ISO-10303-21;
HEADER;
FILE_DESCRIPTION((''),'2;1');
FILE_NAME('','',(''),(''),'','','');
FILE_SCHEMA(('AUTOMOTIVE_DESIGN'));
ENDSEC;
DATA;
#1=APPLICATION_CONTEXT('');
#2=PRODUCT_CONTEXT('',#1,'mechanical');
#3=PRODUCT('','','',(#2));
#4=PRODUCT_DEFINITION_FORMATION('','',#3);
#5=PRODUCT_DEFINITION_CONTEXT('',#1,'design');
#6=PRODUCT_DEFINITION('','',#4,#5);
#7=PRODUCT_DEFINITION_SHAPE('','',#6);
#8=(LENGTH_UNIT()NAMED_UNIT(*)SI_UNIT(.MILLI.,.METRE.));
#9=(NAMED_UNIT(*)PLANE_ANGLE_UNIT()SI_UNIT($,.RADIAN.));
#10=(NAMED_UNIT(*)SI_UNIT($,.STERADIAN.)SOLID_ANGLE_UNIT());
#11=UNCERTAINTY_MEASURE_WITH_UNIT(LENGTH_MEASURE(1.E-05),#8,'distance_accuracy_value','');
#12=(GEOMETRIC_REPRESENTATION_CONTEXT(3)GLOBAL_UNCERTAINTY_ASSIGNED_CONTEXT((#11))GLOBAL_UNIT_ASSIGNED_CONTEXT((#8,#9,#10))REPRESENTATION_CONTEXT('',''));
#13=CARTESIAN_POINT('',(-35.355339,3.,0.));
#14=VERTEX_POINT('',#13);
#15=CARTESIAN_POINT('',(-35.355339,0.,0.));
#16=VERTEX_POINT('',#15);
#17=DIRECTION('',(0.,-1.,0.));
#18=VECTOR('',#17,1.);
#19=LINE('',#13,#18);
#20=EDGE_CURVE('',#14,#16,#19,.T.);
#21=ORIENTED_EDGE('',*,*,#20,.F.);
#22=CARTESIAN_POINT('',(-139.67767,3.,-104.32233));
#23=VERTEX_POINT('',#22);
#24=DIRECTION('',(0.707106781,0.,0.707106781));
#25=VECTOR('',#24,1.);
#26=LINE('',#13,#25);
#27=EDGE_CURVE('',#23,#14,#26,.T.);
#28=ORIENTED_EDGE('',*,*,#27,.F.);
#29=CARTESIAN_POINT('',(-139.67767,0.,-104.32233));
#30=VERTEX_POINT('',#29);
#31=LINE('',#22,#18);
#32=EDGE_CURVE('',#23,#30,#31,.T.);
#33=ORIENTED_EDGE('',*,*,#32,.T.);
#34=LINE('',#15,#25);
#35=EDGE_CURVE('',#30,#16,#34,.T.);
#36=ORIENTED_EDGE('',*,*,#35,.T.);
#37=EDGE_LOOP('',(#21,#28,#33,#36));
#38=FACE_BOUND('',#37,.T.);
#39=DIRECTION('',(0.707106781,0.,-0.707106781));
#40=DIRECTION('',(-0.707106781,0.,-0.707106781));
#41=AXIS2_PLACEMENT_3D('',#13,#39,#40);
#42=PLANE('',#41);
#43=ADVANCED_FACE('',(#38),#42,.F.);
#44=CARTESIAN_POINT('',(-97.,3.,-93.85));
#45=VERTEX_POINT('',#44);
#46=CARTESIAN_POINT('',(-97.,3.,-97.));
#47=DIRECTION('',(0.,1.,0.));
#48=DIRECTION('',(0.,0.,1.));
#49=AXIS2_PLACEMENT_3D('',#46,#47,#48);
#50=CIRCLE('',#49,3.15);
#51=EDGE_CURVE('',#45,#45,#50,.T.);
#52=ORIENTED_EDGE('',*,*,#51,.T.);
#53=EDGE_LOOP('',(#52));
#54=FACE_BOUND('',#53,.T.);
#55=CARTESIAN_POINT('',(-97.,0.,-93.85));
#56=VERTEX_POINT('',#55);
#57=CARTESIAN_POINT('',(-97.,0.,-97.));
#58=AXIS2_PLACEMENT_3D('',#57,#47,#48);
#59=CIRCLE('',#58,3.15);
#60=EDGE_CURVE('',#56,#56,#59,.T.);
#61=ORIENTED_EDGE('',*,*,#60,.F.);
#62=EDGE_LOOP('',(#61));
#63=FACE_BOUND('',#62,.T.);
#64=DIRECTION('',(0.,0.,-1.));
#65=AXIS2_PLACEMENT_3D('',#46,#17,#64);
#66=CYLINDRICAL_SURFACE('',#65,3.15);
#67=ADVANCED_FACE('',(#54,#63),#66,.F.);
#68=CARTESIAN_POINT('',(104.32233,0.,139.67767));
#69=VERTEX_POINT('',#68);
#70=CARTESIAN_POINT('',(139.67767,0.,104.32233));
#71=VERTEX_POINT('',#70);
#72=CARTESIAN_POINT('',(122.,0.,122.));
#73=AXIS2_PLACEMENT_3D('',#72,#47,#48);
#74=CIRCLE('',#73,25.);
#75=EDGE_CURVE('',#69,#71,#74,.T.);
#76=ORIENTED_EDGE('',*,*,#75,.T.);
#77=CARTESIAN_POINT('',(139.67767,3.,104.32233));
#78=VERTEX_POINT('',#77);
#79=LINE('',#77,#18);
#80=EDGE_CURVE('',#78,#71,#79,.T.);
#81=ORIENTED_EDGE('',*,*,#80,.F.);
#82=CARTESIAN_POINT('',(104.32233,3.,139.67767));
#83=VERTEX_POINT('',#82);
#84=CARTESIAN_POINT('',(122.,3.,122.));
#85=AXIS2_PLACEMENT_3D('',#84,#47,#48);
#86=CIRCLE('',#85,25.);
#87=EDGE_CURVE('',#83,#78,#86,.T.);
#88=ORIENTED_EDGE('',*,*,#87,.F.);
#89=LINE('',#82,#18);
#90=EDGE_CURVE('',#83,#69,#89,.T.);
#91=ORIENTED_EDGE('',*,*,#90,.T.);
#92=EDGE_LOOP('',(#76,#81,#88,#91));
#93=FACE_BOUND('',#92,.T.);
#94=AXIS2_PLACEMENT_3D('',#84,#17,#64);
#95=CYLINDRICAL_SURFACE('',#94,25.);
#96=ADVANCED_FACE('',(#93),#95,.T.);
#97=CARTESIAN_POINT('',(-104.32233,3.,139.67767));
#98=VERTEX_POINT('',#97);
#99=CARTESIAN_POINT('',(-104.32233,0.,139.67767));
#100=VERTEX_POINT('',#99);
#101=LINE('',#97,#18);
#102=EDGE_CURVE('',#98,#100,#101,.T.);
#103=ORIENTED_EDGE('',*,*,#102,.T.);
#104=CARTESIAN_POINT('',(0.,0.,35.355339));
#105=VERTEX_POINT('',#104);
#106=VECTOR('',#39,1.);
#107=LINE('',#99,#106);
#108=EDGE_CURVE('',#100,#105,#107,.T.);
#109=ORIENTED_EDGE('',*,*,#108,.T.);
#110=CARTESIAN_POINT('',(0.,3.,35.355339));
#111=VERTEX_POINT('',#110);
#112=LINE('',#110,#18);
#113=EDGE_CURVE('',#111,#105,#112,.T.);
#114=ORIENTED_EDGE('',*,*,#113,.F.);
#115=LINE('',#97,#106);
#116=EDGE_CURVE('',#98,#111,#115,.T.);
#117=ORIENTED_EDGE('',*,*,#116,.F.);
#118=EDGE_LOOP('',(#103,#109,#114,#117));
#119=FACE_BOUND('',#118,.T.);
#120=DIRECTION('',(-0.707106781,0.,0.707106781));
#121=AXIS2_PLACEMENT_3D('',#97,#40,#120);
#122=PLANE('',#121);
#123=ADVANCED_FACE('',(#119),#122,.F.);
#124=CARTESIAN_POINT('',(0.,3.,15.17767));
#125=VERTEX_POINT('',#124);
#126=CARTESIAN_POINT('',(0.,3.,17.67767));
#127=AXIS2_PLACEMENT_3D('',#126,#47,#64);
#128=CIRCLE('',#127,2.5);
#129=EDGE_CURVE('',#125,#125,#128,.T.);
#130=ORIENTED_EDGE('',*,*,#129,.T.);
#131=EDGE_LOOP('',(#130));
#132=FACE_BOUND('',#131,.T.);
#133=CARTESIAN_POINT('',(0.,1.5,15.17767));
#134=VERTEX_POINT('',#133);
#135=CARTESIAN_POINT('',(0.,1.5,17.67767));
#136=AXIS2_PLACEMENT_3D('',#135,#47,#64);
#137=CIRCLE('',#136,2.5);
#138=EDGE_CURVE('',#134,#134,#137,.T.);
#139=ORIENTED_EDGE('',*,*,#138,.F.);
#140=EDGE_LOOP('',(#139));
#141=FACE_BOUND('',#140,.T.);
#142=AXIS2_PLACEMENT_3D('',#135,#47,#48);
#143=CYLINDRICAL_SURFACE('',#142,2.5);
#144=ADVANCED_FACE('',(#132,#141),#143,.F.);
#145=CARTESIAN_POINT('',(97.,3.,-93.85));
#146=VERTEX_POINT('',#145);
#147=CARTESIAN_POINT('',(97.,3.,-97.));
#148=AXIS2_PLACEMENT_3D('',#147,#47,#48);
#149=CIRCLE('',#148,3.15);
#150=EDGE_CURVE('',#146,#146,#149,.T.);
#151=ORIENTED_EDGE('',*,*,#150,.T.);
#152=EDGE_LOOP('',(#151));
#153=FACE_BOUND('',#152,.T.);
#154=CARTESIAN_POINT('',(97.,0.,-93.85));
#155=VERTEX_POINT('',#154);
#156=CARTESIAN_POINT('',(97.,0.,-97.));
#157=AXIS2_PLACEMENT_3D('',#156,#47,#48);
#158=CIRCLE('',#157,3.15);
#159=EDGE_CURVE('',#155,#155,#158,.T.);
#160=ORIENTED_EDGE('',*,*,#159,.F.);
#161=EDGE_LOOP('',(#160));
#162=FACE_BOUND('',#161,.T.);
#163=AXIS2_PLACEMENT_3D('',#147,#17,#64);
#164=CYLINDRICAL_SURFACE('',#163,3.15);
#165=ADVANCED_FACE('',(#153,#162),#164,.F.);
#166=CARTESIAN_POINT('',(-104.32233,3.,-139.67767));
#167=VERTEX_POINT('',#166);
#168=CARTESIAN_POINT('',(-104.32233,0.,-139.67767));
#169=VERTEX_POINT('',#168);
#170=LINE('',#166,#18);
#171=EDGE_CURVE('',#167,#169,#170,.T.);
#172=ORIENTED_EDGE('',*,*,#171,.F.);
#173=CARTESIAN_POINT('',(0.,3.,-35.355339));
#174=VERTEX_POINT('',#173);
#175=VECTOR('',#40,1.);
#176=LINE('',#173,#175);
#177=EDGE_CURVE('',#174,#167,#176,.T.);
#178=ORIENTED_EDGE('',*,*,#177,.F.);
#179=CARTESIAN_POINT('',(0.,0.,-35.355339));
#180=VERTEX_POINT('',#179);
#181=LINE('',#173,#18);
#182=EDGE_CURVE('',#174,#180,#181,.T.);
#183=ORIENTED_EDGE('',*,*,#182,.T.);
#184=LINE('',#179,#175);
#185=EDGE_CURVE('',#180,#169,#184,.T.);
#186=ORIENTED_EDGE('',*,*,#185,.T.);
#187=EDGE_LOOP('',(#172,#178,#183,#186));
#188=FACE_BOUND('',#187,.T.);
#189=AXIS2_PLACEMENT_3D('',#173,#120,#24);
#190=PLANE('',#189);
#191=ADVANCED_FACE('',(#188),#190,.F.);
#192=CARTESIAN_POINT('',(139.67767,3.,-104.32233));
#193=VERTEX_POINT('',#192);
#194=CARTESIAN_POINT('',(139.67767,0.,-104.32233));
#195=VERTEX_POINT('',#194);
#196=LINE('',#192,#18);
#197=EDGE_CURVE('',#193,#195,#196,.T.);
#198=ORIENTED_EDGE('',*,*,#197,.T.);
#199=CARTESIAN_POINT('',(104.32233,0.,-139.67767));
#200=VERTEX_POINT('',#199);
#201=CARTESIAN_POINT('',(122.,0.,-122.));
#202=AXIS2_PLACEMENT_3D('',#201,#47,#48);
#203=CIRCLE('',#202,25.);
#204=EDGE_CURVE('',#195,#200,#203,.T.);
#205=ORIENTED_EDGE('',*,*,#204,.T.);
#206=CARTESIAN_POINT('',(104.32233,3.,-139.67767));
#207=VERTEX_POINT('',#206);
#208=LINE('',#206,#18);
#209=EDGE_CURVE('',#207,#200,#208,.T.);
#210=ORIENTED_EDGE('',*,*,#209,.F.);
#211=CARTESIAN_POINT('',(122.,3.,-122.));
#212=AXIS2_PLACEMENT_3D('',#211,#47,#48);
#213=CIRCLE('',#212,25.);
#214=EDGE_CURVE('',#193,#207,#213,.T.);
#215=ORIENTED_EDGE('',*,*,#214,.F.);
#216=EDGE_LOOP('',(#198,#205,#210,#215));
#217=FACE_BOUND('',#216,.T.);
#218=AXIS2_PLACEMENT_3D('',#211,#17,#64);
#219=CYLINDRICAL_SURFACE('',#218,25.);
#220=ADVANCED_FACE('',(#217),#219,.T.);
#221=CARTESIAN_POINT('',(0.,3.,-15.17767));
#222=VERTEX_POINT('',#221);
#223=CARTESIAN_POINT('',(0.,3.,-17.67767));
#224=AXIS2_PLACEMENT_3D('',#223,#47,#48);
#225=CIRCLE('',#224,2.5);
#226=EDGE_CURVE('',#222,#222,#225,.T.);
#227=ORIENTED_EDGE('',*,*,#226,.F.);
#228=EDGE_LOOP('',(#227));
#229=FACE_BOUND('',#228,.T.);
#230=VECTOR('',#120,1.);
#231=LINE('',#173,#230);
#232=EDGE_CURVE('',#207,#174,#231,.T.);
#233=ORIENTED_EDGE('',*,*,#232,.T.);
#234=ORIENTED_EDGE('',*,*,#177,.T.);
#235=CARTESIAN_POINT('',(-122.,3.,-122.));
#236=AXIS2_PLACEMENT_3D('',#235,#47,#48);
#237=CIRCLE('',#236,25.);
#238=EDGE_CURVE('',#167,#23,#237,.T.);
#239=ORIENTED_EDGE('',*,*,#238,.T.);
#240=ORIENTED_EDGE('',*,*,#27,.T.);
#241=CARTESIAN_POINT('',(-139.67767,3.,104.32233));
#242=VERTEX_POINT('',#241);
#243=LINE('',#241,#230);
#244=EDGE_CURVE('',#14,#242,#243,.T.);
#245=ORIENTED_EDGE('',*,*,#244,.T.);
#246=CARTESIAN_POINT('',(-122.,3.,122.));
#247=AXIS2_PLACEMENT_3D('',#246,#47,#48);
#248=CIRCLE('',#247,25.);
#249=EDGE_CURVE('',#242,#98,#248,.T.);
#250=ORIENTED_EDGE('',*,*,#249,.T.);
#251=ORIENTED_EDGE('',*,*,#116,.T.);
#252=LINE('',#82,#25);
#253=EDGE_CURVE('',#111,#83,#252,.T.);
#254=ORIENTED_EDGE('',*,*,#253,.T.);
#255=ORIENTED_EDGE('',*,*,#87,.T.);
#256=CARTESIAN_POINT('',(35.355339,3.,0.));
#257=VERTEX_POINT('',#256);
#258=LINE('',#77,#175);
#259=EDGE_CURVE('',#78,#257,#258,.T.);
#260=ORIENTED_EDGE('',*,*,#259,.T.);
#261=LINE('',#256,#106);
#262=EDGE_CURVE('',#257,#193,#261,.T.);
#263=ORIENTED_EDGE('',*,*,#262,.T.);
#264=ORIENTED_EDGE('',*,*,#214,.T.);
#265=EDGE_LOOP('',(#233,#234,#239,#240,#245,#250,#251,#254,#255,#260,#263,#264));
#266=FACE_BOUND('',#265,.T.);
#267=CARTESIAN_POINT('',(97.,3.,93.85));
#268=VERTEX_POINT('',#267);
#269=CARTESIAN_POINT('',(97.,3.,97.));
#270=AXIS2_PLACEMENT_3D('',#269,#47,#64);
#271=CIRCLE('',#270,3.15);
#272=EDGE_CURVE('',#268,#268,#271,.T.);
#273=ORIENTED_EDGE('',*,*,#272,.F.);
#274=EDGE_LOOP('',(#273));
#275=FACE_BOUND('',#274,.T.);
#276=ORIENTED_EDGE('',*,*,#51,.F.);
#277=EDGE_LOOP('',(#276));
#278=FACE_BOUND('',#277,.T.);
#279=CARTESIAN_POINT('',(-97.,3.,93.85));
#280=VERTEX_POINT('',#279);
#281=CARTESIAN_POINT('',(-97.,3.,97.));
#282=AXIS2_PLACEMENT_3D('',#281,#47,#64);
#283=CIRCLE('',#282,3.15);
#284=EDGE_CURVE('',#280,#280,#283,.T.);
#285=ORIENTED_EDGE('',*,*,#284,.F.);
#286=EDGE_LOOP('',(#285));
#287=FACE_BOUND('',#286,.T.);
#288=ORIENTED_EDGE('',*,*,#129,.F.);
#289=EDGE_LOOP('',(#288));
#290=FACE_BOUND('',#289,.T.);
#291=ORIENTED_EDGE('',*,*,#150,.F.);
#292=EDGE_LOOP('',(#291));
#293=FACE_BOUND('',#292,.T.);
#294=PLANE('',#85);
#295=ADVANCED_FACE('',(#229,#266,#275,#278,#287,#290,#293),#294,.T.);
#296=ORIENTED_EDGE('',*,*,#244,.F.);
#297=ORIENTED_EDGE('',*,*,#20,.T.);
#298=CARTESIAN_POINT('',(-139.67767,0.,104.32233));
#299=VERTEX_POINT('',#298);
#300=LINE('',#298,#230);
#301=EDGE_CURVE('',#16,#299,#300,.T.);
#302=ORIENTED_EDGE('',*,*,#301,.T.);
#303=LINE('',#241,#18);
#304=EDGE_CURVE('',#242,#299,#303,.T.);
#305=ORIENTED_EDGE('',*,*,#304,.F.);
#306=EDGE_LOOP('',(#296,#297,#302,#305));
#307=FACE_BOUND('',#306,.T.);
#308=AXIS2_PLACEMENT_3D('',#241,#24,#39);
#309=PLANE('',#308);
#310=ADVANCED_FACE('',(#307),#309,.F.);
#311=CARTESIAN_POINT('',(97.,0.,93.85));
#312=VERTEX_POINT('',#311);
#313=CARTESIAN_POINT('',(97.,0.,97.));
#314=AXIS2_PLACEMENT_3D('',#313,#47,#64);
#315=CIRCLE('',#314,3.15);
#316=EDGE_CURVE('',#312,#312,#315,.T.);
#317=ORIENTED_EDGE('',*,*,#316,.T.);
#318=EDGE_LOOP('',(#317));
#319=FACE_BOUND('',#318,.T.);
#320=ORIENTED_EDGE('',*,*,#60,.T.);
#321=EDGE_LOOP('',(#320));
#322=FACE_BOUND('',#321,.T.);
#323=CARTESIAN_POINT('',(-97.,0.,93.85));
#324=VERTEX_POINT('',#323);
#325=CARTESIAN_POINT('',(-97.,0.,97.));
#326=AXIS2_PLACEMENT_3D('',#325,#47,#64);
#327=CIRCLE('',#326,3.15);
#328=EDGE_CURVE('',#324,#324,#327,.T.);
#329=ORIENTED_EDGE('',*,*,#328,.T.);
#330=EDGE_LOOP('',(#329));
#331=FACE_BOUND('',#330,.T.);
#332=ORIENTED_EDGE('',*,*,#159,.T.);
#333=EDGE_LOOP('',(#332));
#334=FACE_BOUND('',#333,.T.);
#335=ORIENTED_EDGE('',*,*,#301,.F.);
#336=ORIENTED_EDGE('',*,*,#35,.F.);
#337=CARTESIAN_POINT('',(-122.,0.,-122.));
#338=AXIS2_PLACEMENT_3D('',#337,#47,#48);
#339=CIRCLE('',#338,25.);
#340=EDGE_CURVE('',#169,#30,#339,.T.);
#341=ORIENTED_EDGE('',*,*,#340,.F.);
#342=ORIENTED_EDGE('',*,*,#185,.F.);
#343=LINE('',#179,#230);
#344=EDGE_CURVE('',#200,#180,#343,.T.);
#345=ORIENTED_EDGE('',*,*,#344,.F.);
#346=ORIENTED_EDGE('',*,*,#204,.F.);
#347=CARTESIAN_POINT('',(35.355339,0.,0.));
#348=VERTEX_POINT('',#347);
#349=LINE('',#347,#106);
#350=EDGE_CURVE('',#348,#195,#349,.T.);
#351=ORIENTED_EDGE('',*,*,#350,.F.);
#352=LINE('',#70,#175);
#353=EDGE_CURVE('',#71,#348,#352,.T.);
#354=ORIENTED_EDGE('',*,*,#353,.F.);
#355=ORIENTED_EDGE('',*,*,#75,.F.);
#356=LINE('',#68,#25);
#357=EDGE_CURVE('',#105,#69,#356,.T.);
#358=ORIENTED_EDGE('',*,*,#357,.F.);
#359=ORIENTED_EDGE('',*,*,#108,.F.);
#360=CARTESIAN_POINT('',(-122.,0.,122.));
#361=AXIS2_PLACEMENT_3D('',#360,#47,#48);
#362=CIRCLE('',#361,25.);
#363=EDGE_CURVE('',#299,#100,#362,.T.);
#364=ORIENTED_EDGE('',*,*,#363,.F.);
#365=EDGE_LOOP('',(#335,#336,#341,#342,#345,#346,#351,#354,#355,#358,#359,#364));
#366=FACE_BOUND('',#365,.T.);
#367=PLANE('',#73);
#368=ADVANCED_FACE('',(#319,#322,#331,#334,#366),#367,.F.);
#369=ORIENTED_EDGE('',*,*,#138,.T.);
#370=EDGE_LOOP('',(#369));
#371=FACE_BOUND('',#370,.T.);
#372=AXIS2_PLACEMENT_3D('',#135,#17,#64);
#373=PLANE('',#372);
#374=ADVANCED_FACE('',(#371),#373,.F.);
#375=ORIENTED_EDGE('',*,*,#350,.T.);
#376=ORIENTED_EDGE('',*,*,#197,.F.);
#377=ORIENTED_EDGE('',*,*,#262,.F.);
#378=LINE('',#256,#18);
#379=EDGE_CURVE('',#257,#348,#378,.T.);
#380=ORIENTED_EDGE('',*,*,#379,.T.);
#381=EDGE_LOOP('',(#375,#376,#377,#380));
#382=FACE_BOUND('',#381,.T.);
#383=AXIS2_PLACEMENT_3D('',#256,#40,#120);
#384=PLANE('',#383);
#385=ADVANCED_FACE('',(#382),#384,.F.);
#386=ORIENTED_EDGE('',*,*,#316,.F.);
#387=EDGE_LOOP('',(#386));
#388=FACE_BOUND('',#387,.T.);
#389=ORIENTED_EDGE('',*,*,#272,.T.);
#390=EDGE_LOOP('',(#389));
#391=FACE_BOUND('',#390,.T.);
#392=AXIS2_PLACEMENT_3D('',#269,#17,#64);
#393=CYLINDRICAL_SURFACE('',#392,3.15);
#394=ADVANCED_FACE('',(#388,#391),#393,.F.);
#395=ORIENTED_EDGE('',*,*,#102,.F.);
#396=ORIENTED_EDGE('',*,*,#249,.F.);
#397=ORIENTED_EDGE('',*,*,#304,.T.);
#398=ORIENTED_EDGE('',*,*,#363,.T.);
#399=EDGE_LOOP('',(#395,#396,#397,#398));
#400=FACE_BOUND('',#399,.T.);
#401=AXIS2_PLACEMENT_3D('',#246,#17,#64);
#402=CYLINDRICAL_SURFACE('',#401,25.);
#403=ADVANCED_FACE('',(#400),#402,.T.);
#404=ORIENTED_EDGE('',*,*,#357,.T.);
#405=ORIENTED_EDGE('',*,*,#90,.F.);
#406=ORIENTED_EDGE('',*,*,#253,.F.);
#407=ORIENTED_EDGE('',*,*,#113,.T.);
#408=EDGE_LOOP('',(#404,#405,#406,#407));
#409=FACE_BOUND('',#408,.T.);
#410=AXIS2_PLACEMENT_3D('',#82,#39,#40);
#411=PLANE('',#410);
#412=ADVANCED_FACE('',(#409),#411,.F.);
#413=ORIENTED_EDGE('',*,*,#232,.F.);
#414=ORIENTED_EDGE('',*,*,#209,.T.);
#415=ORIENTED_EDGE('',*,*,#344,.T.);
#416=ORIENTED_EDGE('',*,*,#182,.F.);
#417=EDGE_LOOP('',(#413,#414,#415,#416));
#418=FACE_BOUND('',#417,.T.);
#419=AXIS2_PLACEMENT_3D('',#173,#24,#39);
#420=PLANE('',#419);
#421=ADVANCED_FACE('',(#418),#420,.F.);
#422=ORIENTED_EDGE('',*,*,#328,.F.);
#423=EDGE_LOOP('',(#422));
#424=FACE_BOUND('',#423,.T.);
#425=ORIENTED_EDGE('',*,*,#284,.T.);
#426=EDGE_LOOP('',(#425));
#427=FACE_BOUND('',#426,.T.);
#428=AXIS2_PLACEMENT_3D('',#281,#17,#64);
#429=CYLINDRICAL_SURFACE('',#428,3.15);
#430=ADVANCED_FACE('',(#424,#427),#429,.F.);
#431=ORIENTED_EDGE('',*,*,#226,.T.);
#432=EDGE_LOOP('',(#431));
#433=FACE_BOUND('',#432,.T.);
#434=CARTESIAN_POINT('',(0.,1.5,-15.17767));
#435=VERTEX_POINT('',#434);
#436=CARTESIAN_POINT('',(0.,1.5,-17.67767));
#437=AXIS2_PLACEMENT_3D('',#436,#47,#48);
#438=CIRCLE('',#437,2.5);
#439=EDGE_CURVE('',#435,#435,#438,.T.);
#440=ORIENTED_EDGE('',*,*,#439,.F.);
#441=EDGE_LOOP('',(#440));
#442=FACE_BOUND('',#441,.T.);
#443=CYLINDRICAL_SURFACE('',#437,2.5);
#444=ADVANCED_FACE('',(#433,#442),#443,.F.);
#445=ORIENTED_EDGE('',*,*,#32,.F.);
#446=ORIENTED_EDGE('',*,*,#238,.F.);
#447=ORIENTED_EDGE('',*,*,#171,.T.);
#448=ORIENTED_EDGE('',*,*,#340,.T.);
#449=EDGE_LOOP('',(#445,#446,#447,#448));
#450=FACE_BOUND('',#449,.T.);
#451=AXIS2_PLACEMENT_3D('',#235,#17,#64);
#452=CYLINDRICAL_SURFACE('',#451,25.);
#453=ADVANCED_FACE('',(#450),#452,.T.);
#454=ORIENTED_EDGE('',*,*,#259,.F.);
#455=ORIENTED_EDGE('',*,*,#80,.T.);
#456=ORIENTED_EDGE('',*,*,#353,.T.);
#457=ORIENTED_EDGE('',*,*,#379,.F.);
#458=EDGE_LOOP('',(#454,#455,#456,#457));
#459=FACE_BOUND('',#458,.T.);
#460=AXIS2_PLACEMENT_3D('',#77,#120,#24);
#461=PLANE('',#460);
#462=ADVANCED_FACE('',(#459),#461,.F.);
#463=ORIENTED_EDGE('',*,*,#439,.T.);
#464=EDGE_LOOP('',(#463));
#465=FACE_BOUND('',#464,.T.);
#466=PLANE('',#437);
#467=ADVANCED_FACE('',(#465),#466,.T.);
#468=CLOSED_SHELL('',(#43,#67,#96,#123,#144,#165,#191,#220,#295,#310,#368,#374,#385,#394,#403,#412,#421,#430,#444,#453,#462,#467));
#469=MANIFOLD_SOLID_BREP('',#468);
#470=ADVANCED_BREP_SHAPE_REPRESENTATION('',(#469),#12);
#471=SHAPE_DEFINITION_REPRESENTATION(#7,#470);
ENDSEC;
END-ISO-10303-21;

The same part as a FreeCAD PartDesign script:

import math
import FreeCAD as App
import Part
import Sketcher

doc = App.newDocument("Part")
body = doc.addObject("PartDesign::Body", "Body")

# Sketch on XZ plane
sketch1 = body.newObject("Sketcher::SketchObject", "Sketch")
sketch1.AttachmentSupport = (doc.getObject("XZ_Plane"), [""])
sketch1.MapMode = "FlatFace"
sketch1.addGeometry([
    Part.LineSegment(App.Vector(0, 35.4, 0), App.Vector(104.3, 139.7, 0)),  # 0
    Part.ArcOfCircle(Part.Circle(App.Vector(122, 122, 0), App.Vector(0, 0, 1), 25), math.radians(-45), math.radians(135)),  # 1
    Part.LineSegment(App.Vector(139.7, 104.3, 0), App.Vector(35.4, 0, 0)),  # 2
    Part.LineSegment(App.Vector(35.4, 0, 0), App.Vector(139.7, -104.3, 0)),  # 3
    Part.ArcOfCircle(Part.Circle(App.Vector(122, -122, 0), App.Vector(0, 0, 1), 25), math.radians(-135), math.radians(45)),  # 4
    Part.LineSegment(App.Vector(104.3, -139.7, 0), App.Vector(0, -35.4, 0)),  # 5
    Part.LineSegment(App.Vector(0, -35.4, 0), App.Vector(-104.3, -139.7, 0)),  # 6
    Part.ArcOfCircle(Part.Circle(App.Vector(-122, -122, 0), App.Vector(0, 0, 1), 25), math.radians(135), math.radians(315)),  # 7
    Part.LineSegment(App.Vector(-139.7, -104.3, 0), App.Vector(-35.4, 0, 0)),  # 8
    Part.LineSegment(App.Vector(-35.4, 0, 0), App.Vector(-139.7, 104.3, 0)),  # 9
    Part.ArcOfCircle(Part.Circle(App.Vector(-122, 122, 0), App.Vector(0, 0, 1), 25), math.radians(45), math.radians(225)),  # 10
    Part.LineSegment(App.Vector(-104.3, 139.7, 0), App.Vector(0, 35.4, 0)),  # 11
    Part.Circle(App.Vector(97, 97, 0), App.Vector(0, 0, 1), 3.1),  # 12
    Part.Circle(App.Vector(-97, 97, 0), App.Vector(0, 0, 1), 3.1),  # 13
    Part.Circle(App.Vector(97, -97, 0), App.Vector(0, 0, 1), 3.1),  # 14
    Part.Circle(App.Vector(-97, -97, 0), App.Vector(0, 0, 1), 3.1),  # 15
], False)
sketch1.addConstraint([
    Sketcher.Constraint("Tangent", 0, 2, 1, 2),
    Sketcher.Constraint("Tangent", 1, 1, 2, 1),
    Sketcher.Constraint("Coincident", 2, 2, 3, 1),
    Sketcher.Constraint("Tangent", 3, 2, 4, 2),
    Sketcher.Constraint("Tangent", 4, 1, 5, 1),
    Sketcher.Constraint("Coincident", 5, 2, 6, 1),
    Sketcher.Constraint("Tangent", 6, 2, 7, 2),
    Sketcher.Constraint("Tangent", 7, 1, 8, 1),
    Sketcher.Constraint("Coincident", 8, 2, 9, 1),
    Sketcher.Constraint("Tangent", 9, 2, 10, 2),
    Sketcher.Constraint("Tangent", 10, 1, 11, 1),
    Sketcher.Constraint("Coincident", 11, 2, 0, 1),
    Sketcher.Constraint("Equal", 1, 4),
    Sketcher.Constraint("Equal", 4, 7),
    Sketcher.Constraint("Equal", 7, 10),
    Sketcher.Constraint("Equal", 12, 13),
    Sketcher.Constraint("Equal", 13, 14),
    Sketcher.Constraint("Equal", 14, 15),
    Sketcher.Constraint("Symmetric", 1, 3, 7, 3, -1, 1),
    Sketcher.Constraint("Symmetric", 4, 3, 10, 3, -1, 1),
    Sketcher.Constraint("Symmetric", 13, 3, 14, 3, -1, 1),
    Sketcher.Constraint("Symmetric", 12, 3, 15, 3, -1, 1),
    Sketcher.Constraint("Symmetric", 2, 2, 8, 2, -1, 1),
    Sketcher.Constraint("Symmetric", 5, 2, 11, 2, -1, 1),
    Sketcher.Constraint("Symmetric", 4, 3, 7, 3, -2),
    Sketcher.Constraint("Symmetric", 12, 3, 13, 3, -2),
    Sketcher.Constraint("PointOnObject", 2, 2, -1),
    Sketcher.Constraint("PointOnObject", 5, 2, -2),
    Sketcher.Constraint("Parallel", 0, 2),
    Sketcher.Constraint("Perpendicular", 2, 3),
    Sketcher.Constraint("Equal", 0, 2),
    Sketcher.Constraint("Radius", 1, 25.0),
    Sketcher.Constraint("Diameter", 12, 6.3),
    Sketcher.Constraint("DistanceX", -1, 1, 1, 3, 122.0),
    Sketcher.Constraint("DistanceX", -1, 1, 12, 3, 97.0),
    Sketcher.Constraint("DistanceY", -1, 1, 12, 3, 97.0),
])
pad1 = body.newObject("PartDesign::Pad", "Pad")
pad1.Profile = sketch1
pad1.Length = 3
pad1.Reversed = True

# Sketch on XZ plane
sketch2 = body.newObject("Sketcher::SketchObject", "Sketch001")
sketch2.AttachmentSupport = (doc.getObject("XZ_Plane"), [""])
sketch2.MapMode = "FlatFace"
sketch2.AttachmentOffset = App.Placement(App.Vector(0, 0, -3), App.Rotation())
sketch2.addGeometry([
    Part.Circle(App.Vector(0, -17.7, 0), App.Vector(0, 0, 1), 2.5),
    Part.Circle(App.Vector(0, 17.7, 0), App.Vector(0, 0, 1), 2.5),
], False)
sketch2.addConstraint([
    Sketcher.Constraint("Equal", 0, 1),
    Sketcher.Constraint("Symmetric", 0, 3, 1, 3, -1, 1),
    Sketcher.Constraint("PointOnObject", 0, 3, -2),
    Sketcher.Constraint("Diameter", 0, 5.0),
    Sketcher.Constraint("DistanceY", 0, 3, -1, 1, 17.67767),
])
pocket1 = body.newObject("PartDesign::Pocket", "Pocket")
pocket1.Profile = sketch2
pocket1.Length = 1.5
pocket1.Reversed = True

doc.recompute()
